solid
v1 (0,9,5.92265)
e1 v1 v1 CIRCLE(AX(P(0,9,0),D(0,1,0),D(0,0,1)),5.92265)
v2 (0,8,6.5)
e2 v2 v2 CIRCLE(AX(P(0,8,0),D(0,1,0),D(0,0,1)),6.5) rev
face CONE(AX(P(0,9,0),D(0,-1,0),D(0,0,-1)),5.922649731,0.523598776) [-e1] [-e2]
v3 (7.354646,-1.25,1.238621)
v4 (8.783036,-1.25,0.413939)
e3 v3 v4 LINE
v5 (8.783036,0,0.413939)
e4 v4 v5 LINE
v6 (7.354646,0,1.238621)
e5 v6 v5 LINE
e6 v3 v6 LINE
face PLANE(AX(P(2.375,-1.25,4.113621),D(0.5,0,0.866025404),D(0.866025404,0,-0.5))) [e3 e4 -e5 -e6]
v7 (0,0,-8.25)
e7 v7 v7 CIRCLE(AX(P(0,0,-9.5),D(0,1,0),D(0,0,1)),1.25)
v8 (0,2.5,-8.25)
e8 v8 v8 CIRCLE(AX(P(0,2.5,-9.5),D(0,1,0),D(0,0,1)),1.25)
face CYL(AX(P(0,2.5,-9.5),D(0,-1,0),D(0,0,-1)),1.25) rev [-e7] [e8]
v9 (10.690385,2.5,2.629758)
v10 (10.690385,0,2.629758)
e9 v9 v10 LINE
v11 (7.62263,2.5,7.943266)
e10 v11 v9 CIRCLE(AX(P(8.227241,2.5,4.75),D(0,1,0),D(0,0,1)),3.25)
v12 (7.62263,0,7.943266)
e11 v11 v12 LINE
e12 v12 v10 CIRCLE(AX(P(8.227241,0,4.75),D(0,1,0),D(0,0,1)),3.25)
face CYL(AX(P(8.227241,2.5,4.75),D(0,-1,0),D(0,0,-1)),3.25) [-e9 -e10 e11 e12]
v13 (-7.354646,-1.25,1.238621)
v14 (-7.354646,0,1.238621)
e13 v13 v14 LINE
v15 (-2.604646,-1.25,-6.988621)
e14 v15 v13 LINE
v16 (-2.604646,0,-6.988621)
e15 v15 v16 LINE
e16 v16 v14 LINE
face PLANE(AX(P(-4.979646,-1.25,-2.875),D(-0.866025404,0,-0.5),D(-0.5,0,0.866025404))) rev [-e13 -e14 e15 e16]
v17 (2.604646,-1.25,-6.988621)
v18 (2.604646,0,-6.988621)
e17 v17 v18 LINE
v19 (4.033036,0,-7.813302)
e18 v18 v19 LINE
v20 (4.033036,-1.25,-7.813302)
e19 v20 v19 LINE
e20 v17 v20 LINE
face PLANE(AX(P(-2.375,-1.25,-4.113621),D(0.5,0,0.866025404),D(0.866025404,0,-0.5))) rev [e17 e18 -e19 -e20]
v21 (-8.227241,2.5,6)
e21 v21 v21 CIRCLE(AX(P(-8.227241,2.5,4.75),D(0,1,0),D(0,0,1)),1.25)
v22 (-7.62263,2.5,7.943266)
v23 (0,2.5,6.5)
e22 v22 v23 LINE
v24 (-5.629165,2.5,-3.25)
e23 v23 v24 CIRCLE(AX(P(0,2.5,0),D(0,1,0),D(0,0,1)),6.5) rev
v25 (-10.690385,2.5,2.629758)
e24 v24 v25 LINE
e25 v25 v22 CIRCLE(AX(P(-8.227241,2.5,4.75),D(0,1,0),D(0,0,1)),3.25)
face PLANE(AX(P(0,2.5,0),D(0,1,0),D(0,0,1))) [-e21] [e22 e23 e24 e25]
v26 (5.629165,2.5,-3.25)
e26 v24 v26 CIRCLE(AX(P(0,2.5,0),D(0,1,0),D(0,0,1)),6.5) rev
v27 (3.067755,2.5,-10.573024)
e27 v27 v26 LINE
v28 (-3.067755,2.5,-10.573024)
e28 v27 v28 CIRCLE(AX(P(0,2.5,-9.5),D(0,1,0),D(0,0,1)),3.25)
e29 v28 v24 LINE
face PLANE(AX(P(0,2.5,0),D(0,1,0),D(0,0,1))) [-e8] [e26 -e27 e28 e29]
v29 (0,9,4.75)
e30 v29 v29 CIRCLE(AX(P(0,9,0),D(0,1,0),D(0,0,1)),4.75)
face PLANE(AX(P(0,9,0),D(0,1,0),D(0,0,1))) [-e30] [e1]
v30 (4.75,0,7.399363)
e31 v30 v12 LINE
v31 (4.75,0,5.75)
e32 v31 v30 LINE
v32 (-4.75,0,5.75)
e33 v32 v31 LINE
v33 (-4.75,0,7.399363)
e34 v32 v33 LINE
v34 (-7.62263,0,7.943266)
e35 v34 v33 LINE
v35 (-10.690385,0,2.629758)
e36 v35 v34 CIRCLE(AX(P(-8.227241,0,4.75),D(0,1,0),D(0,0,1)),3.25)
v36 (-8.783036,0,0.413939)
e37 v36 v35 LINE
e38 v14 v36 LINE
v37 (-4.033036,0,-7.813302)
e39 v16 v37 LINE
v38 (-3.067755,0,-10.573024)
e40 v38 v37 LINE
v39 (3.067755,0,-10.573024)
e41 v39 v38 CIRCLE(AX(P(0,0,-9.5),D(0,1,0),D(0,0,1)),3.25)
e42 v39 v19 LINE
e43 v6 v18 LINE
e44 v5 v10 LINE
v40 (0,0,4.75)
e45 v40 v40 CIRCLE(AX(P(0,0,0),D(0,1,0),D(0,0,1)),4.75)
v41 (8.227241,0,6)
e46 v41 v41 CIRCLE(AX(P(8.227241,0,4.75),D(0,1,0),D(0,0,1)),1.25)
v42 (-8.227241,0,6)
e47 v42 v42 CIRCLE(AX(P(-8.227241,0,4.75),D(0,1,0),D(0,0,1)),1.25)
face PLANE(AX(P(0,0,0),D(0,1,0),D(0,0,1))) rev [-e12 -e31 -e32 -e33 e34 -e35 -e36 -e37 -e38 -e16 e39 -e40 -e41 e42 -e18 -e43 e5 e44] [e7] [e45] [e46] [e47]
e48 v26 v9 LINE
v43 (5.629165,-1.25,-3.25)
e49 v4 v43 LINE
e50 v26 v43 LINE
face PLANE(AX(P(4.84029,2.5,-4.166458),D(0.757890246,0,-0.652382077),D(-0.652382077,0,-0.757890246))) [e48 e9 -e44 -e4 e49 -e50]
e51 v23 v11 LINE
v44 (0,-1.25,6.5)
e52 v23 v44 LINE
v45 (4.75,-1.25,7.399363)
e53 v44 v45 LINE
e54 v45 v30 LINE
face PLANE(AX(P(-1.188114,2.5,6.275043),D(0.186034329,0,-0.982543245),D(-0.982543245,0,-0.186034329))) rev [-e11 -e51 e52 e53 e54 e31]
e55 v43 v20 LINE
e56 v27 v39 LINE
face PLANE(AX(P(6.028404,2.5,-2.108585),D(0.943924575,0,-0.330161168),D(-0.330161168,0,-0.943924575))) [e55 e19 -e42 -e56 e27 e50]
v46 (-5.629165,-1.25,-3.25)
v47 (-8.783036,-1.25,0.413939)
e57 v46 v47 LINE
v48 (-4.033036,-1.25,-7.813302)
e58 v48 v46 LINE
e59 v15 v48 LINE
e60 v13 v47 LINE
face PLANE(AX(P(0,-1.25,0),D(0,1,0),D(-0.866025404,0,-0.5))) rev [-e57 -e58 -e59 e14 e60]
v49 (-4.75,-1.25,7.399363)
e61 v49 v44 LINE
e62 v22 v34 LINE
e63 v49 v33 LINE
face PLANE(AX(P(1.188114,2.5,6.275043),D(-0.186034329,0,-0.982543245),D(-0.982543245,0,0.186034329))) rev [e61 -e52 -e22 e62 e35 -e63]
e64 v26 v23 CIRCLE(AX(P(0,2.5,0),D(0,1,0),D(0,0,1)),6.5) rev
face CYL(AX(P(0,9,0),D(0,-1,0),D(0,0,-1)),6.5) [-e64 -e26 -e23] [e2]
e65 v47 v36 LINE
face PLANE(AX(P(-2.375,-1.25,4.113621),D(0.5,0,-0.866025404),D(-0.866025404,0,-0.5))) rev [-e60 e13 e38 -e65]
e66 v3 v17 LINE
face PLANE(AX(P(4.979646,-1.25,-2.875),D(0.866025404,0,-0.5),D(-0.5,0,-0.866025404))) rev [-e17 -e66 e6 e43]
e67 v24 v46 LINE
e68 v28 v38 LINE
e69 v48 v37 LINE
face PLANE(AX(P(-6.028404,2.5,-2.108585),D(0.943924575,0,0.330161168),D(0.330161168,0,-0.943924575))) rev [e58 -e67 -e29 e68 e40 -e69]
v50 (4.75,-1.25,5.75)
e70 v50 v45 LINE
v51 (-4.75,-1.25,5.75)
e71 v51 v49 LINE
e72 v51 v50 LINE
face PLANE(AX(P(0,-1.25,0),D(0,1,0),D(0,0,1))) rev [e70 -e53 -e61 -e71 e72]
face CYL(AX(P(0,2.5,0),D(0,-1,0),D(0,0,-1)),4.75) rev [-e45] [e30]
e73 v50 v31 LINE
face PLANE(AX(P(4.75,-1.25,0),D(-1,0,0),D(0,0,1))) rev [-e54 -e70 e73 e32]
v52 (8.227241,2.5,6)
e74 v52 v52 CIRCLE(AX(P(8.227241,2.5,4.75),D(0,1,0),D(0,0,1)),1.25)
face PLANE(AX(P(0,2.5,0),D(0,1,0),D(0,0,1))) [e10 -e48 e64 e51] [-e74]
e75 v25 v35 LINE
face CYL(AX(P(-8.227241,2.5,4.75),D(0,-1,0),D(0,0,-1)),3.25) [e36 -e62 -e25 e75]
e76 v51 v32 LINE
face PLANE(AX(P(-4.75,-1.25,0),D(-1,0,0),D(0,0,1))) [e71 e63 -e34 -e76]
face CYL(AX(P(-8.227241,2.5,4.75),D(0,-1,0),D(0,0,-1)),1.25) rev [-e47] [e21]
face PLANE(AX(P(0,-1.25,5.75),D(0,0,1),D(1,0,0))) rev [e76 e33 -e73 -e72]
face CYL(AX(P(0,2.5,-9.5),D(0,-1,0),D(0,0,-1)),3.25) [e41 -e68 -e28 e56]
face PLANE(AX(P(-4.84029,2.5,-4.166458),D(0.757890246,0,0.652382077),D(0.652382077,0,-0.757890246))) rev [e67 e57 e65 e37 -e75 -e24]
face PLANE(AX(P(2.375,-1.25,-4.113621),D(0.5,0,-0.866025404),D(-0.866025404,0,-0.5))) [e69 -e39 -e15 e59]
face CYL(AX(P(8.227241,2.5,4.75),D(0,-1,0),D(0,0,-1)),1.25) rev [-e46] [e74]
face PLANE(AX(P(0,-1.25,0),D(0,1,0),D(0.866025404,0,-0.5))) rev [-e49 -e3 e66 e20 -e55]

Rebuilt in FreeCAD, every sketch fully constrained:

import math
import FreeCAD as App
import Part
import Sketcher


def edges_at(feature, points):
    """Names of the edges that pass closest to the given points."""
    edges = feature.Shape.Edges
    near = lambda p: min(range(len(edges)), key=lambda i: edges[i].distToShape(Part.Vertex(*p))[0])
    return sorted({f"Edge{near(p) + 1}" for p in points})

doc = App.newDocument("Part")
body = doc.addObject("PartDesign::Body", "Body")

sketch1 = body.newObject("Sketcher::SketchObject", "Sketch")
sketch1.AttachmentSupport = (doc.getObject("XZ_Plane"), [""])
sketch1.MapMode = "FlatFace"
sketch1.addGeometry(Part.ArcOfCircle(Part.Circle(App.Vector(8.2, 4.7, 0), App.Vector(0, 0, 1), 3.3), math.radians(-41), math.radians(101)), False)
sketch1.addGeometry(Part.LineSegment(App.Vector(10.7, 2.6, 0), App.Vector(5.6, -3.2, 0)), False)
sketch1.addGeometry(Part.LineSegment(App.Vector(5.6, -3.2, 0), App.Vector(3.1, -10.6, 0)), False)
sketch1.addGeometry(Part.ArcOfCircle(Part.Circle(App.Vector(0, -9.5, 0), App.Vector(0, 0, 1), 3.2), math.radians(-161), math.radians(-19)), False)
sketch1.addGeometry(Part.LineSegment(App.Vector(-3.1, -10.6, 0), App.Vector(-5.6, -3.2, 0)), False)
sketch1.addGeometry(Part.LineSegment(App.Vector(-5.6, -3.2, 0), App.Vector(-10.7, 2.6, 0)), False)
sketch1.addGeometry(Part.ArcOfCircle(Part.Circle(App.Vector(-8.2, 4.7, 0), App.Vector(0, 0, 1), 3.3), math.radians(79), math.radians(221)), False)
sketch1.addGeometry(Part.LineSegment(App.Vector(-7.6, 7.9, 0), App.Vector(0, 6.5, 0)), False)
sketch1.addGeometry(Part.LineSegment(App.Vector(0, 6.5, 0), App.Vector(7.6, 7.9, 0)), False)
sketch1.addGeometry(Part.Circle(App.Vector(-8.2, 4.8, 0), App.Vector(0, 0, 1), 1.2), False)
sketch1.addGeometry(Part.Circle(App.Vector(8.2, 4.8, 0), App.Vector(0, 0, 1), 1.2), False)
sketch1.addGeometry(Part.Circle(App.Vector(0, 0, 0), App.Vector(0, 0, 1), 4.8), False)
sketch1.addGeometry(Part.Circle(App.Vector(0, -9.5, 0), App.Vector(0, 0, 1), 1.2), False)
sketch1.addConstraint(Sketcher.Constraint("Tangent", 0, 1, 1, 1))
sketch1.addConstraint(Sketcher.Constraint("Coincident", 1, 2, 2, 1))
sketch1.addConstraint(Sketcher.Constraint("Tangent", 2, 2, 3, 2))
sketch1.addConstraint(Sketcher.Constraint("Tangent", 3, 1, 4, 1))
sketch1.addConstraint(Sketcher.Constraint("Coincident", 4, 2, 5, 1))
sketch1.addConstraint(Sketcher.Constraint("Tangent", 5, 2, 6, 2))
sketch1.addConstraint(Sketcher.Constraint("Tangent", 6, 1, 7, 1))
sketch1.addConstraint(Sketcher.Constraint("Coincident", 7, 2, 8, 1))
sketch1.addConstraint(Sketcher.Constraint("Tangent", 8, 2, 0, 2))
sketch1.addConstraint(Sketcher.Constraint("Coincident", 11, 3, -1, 1))
sketch1.addConstraint(Sketcher.Constraint("Coincident", 9, 3, 6, 3))
sketch1.addConstraint(Sketcher.Constraint("Coincident", 10, 3, 0, 3))
sketch1.addConstraint(Sketcher.Constraint("Coincident", 12, 3, 3, 3))
sketch1.addConstraint(Sketcher.Constraint("Equal", 0, 3))
sketch1.addConstraint(Sketcher.Constraint("Equal", 3, 6))
sketch1.addConstraint(Sketcher.Constraint("Equal", 9, 10))
sketch1.addConstraint(Sketcher.Constraint("Equal", 10, 12))
sketch1.addConstraint(Sketcher.Constraint("Symmetric", 0, 3, 6, 3, -2))
sketch1.addConstraint(Sketcher.Constraint("Symmetric", 2, 2, 3, 1, -2))
sketch1.addConstraint(Sketcher.Constraint("PointOnObject", 7, 2, -2))
sketch1.addConstraint(Sketcher.Constraint("Horizontal", 1, 2, 4, 2))
sketch1.addConstraint(Sketcher.Constraint("Equal", 1, 2))
sketch1.addConstraint(Sketcher.Constraint("Equal", 5, 7))
sketch1.addConstraint(Sketcher.Constraint("Diameter", 9, 2.5))
sketch1.addConstraint(Sketcher.Constraint("Diameter", 11, 9.5))
sketch1.addConstraint(Sketcher.Constraint("Radius", 0, 3.25))
sketch1.addConstraint(Sketcher.Constraint("DistanceY", 1, 2, 0, 3, 8.0))
sketch1.addConstraint(Sketcher.Constraint("DistanceY", 3, 3, -1, 1, 9.5))
sketch1.addConstraint(Sketcher.Constraint("DistanceY", -1, 1, 7, 2, 6.5))
sketch1.addConstraint(Sketcher.Constraint("DistanceY", -1, 1, 0, 3, 4.75))
pad1 = body.newObject("PartDesign::Pad", "Pad")
pad1.Profile = sketch1
pad1.Length = 2.5
pad1.Reversed = True

sketch2 = body.newObject("Sketcher::SketchObject", "Sketch001")
sketch2.AttachmentSupport = (doc.getObject("XZ_Plane"), [""])
sketch2.MapMode = "FlatFace"
sketch2.addGeometry(Part.Circle(App.Vector(0, 0, 0), App.Vector(0, 0, 1), 6.5), False)
sketch2.addGeometry(Part.Circle(App.Vector(0, 0, 0), App.Vector(0, 0, 1), 4.8), False)
sketch2.addConstraint(Sketcher.Constraint("Coincident", 0, 3, -1, 1))
sketch2.addConstraint(Sketcher.Constraint("Coincident", 1, 3, -1, 1))
sketch2.addConstraint(Sketcher.Constraint("Diameter", 0, 13.0))
sketch2.addConstraint(Sketcher.Constraint("Diameter", 1, 9.5))
pad2 = body.newObject("PartDesign::Pad", "Pad001")
pad2.Profile = sketch2
pad2.Length = 9
pad2.Reversed = True
doc.recompute()

chamfer = body.newObject("PartDesign::Chamfer", "Chamfer")
chamfer.Base = (pad2, edges_at(pad2, [(0, 9, -6.5)]))
chamfer.ChamferType = "Two distances"
chamfer.Size = 1
chamfer.Size2 = 0.57735

sketch3 = body.newObject("Sketcher::SketchObject", "Sketch002")
sketch3.AttachmentSupport = (doc.getObject("XZ_Plane"), [""])
sketch3.MapMode = "FlatFace"
sketch3.addGeometry(Part.LineSegment(App.Vector(-4.8, 5.8, 0), App.Vector(-4.8, 7.4, 0)), False)
sketch3.addGeometry(Part.LineSegment(App.Vector(-4.8, 7.4, 0), App.Vector(0, 6.5, 0)), False)
sketch3.addGeometry(Part.LineSegment(App.Vector(0, 6.5, 0), App.Vector(4.8, 7.4, 0)), False)
sketch3.addGeometry(Part.LineSegment(App.Vector(4.8, 7.4, 0), App.Vector(4.8, 5.8, 0)), False)
sketch3.addGeometry(Part.LineSegment(App.Vector(4.8, 5.8, 0), App.Vector(-4.8, 5.8, 0)), False)
sketch3.addConstraint(Sketcher.Constraint("Coincident", 0, 2, 1, 1))
sketch3.addConstraint(Sketcher.Constraint("Coincident", 1, 2, 2, 1))
sketch3.addConstraint(Sketcher.Constraint("Coincident", 2, 2, 3, 1))
sketch3.addConstraint(Sketcher.Constraint("Coincident", 3, 2, 4, 1))
sketch3.addConstraint(Sketcher.Constraint("Coincident", 4, 2, 0, 1))
sketch3.addConstraint(Sketcher.Constraint("Vertical", 0))
sketch3.addConstraint(Sketcher.Constraint("Vertical", 3))
sketch3.addConstraint(Sketcher.Constraint("Horizontal", 4))
sketch3.addConstraint(Sketcher.Constraint("Symmetric", 0, 2, 2, 2, -2))
sketch3.addConstraint(Sketcher.Constraint("PointOnObject", 1, 2, -2))
sketch3.addConstraint(Sketcher.Constraint("DistanceX", 4, 2, 4, 1, 9.5))
sketch3.addConstraint(Sketcher.Constraint("DistanceY", -1, 1, 1, 2, 6.5))
sketch3.addConstraint(Sketcher.Constraint("DistanceY", -1, 1, 3, 2, 5.75))
sketch3.addConstraint(Sketcher.Constraint("DistanceY", 0, 1, 0, 2, 1.649363))
pad3 = body.newObject("PartDesign::Pad", "Pad002")
pad3.Profile = sketch3
pad3.Length = 1.25
doc.recompute()

polarpattern = body.newObject("PartDesign::PolarPattern", "PolarPattern")
polarpattern.Originals = [pad3]
polarpattern.Axis = (doc.getObject("Y_Axis"), [""])
polarpattern.Angle = 360
polarpattern.Occurrences = 3
body.Tip = polarpattern

doc.recompute()
